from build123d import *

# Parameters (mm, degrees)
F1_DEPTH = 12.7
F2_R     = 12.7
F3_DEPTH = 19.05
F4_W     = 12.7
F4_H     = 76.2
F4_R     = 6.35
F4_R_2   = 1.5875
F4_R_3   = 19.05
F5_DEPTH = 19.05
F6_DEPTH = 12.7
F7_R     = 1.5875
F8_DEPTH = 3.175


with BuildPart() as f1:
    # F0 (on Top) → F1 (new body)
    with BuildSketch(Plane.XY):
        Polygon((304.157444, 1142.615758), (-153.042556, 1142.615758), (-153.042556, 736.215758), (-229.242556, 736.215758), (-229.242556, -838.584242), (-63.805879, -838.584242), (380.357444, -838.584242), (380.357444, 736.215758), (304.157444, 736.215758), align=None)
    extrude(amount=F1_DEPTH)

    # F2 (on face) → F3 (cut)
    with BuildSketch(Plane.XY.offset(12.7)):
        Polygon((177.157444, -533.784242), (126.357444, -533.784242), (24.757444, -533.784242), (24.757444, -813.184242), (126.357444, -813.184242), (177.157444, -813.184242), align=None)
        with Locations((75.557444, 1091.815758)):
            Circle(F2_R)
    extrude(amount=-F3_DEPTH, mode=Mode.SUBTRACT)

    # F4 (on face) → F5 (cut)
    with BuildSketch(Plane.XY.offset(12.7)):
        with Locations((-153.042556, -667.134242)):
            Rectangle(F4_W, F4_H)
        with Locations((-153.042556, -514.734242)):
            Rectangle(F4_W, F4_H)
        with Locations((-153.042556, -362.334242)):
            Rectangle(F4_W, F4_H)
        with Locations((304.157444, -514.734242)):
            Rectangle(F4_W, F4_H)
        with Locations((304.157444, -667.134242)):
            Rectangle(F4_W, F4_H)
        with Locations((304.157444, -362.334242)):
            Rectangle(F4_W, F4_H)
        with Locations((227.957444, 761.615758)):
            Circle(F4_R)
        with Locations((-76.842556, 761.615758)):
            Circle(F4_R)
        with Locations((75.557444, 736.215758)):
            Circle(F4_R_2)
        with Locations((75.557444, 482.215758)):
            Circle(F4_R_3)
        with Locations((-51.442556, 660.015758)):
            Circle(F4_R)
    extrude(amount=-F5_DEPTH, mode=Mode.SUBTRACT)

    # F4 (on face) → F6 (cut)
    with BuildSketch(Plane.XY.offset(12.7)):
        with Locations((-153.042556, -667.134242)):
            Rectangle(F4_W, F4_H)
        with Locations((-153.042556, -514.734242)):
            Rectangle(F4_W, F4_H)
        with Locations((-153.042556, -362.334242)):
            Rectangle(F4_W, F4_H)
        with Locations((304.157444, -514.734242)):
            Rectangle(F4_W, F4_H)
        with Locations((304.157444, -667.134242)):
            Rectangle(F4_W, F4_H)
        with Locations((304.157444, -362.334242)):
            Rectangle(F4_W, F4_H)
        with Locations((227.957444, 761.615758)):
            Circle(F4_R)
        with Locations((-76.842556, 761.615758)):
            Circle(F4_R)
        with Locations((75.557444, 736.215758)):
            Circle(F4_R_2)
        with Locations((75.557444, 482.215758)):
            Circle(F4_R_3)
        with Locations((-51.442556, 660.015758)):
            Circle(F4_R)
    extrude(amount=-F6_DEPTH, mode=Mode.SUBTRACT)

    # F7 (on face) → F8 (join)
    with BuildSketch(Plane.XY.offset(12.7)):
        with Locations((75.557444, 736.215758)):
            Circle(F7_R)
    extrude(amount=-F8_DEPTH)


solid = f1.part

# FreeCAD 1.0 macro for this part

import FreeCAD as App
import Part
import Sketcher

V = App.Vector
Q = App.Units.Quantity

doc = App.newDocument("Part")
body = doc.addObject("PartDesign::Body", "Body")

# Sketch on XY plane
sketch1 = body.newObject("Sketcher::SketchObject", "Sketch")
sketch1.AttachmentSupport = (doc.getObject("XY_Plane"), [""])
sketch1.MapMode = "FlatFace"
sketch1.addGeometry(Part.LineSegment(V(304, 1143, 0), V(-153, 1143, 0)), False)
sketch1.addGeometry(Part.LineSegment(V(-153, 1143, 0), V(-153, 736, 0)), False)
sketch1.addGeometry(Part.LineSegment(V(-153, 736, 0), V(-229, 736, 0)), False)
sketch1.addGeometry(Part.LineSegment(V(-229, 736, 0), V(-229, -839, 0)), False)
sketch1.addGeometry(Part.LineSegment(V(-229, -839, 0), V(380, -839, 0)), False)
sketch1.addGeometry(Part.LineSegment(V(380, -839, 0), V(380, 736, 0)), False)
sketch1.addGeometry(Part.LineSegment(V(380, 736, 0), V(304, 736, 0)), False)
sketch1.addGeometry(Part.LineSegment(V(304, 736, 0), V(304, 1143, 0)), False)
sketch1.addConstraint(Sketcher.Constraint("Coincident", 0, 2, 1, 1))
sketch1.addConstraint(Sketcher.Constraint("Coincident", 1, 2, 2, 1))
sketch1.addConstraint(Sketcher.Constraint("Coincident", 2, 2, 3, 1))
sketch1.addConstraint(Sketcher.Constraint("Coincident", 3, 2, 4, 1))
sketch1.addConstraint(Sketcher.Constraint("Coincident", 4, 2, 5, 1))
sketch1.addConstraint(Sketcher.Constraint("Coincident", 5, 2, 6, 1))
sketch1.addConstraint(Sketcher.Constraint("Coincident", 6, 2, 7, 1))
sketch1.addConstraint(Sketcher.Constraint("Coincident", 7, 2, 0, 1))
sketch1.addConstraint(Sketcher.Constraint("Horizontal", 0))
sketch1.addConstraint(Sketcher.Constraint("Vertical", 1))
sketch1.addConstraint(Sketcher.Constraint("Horizontal", 2))
sketch1.addConstraint(Sketcher.Constraint("Vertical", 3))
sketch1.addConstraint(Sketcher.Constraint("Horizontal", 4))
sketch1.addConstraint(Sketcher.Constraint("Vertical", 5))
sketch1.addConstraint(Sketcher.Constraint("Horizontal", 6))
sketch1.addConstraint(Sketcher.Constraint("Vertical", 7))
sketch1.addConstraint(Sketcher.Constraint("Horizontal", 2, 2, 5, 2))
sketch1.addConstraint(Sketcher.Constraint("Equal", 2, 6))
sketch1.addConstraint(Sketcher.Constraint("DistanceX", 0, 2, 0, 1, Q("18 in")))
sketch1.addConstraint(Sketcher.Constraint("DistanceX", 2, 2, 2, 1, Q("3 in")))
sketch1.addConstraint(Sketcher.Constraint("DistanceY", 1, 2, 1, 1, Q("16 in")))
sketch1.addConstraint(Sketcher.Constraint("DistanceY", 3, 2, 3, 1, Q("62 in")))
sketch1.addConstraint(Sketcher.Constraint("DistanceY", -1, 1, 0, 2, 1142.615758))
sketch1.addConstraint(Sketcher.Constraint("DistanceX", 0, 2, -1, 1, 153.042556))
pad1 = body.newObject("PartDesign::Pad", "Pad")
pad1.Profile = sketch1
pad1.Length = Q("0.5 in")

# Sketch on XY plane
sketch2 = body.newObject("Sketcher::SketchObject", "Sketch001")
sketch2.AttachmentSupport = (doc.getObject("XY_Plane"), [""])
sketch2.MapMode = "FlatFace"
sketch2.AttachmentOffset = App.Placement(V(0, 0, 0.5 * 25.4), App.Rotation())
sketch2.addGeometry(Part.LineSegment(V(177, -534, 0), V(25, -534, 0)), False)
sketch2.addGeometry(Part.LineSegment(V(25, -534, 0), V(25, -813, 0)), False)
sketch2.addGeometry(Part.LineSegment(V(25, -813, 0), V(177, -813, 0)), False)
sketch2.addGeometry(Part.LineSegment(V(177, -813, 0), V(177, -534, 0)), False)
sketch2.addGeometry(Part.Circle(V(76, 1092, 0), V(0, 0, 1), 13), False)
sketch2.addConstraint(Sketcher.Constraint("Coincident", 0, 2, 1, 1))
sketch2.addConstraint(Sketcher.Constraint("Coincident", 1, 2, 2, 1))
sketch2.addConstraint(Sketcher.Constraint("Coincident", 2, 2, 3, 1))
sketch2.addConstraint(Sketcher.Constraint("Coincident", 3, 2, 0, 1))
sketch2.addConstraint(Sketcher.Constraint("Horizontal", 0))
sketch2.addConstraint(Sketcher.Constraint("Vertical", 1))
sketch2.addConstraint(Sketcher.Constraint("Horizontal", 2))
sketch2.addConstraint(Sketcher.Constraint("Vertical", 3))
sketch2.addConstraint(Sketcher.Constraint("Diameter", 4, Q("1 in")))
sketch2.addConstraint(Sketcher.Constraint("DistanceX", 0, 2, 0, 1, Q("6 in")))
sketch2.addConstraint(Sketcher.Constraint("DistanceY", 1, 2, 1, 1, Q("11 in")))
sketch2.addConstraint(Sketcher.Constraint("DistanceX", 0, 2, 4, 3, Q("2 in")))
sketch2.addConstraint(Sketcher.Constraint("DistanceY", 0, 2, 4, 3, Q("64 in")))
sketch2.addConstraint(Sketcher.Constraint("DistanceY", -1, 1, 4, 3, 1091.815758))
sketch2.addConstraint(Sketcher.Constraint("DistanceX", -1, 1, 4, 3, 75.557444))
pocket1 = body.newObject("PartDesign::Pocket", "Pocket")
pocket1.Profile = sketch2
pocket1.Length = Q("0.75 in")

# Sketch on XY plane
sketch3 = body.newObject("Sketcher::SketchObject", "Sketch002")
sketch3.AttachmentSupport = (doc.getObject("XY_Plane"), [""])
sketch3.MapMode = "FlatFace"
sketch3.AttachmentOffset = App.Placement(V(0, 0, 0.5 * 25.4), App.Rotation())
sketch3.addGeometry(Part.LineSegment(V(-159.4, -629, 0), V(-159.4, -705.2, 0)), False)
sketch3.addGeometry(Part.LineSegment(V(-159.4, -705.2, 0), V(-146.7, -705.2, 0)), False)
sketch3.addGeometry(Part.LineSegment(V(-146.7, -705.2, 0), V(-146.7, -629, 0)), False)
sketch3.addGeometry(Part.LineSegment(V(-146.7, -629, 0), V(-159.4, -629, 0)), False)
sketch3.addGeometry(Part.LineSegment(V(-159.4, -476.6, 0), V(-159.4, -552.8, 0)), False)
sketch3.addGeometry(Part.LineSegment(V(-159.4, -552.8, 0), V(-146.7, -552.8, 0)), False)
sketch3.addGeometry(Part.LineSegment(V(-146.7, -552.8, 0), V(-146.7, -476.6, 0)), False)
sketch3.addGeometry(Part.LineSegment(V(-146.7, -476.6, 0), V(-159.4, -476.6, 0)), False)
sketch3.addGeometry(Part.LineSegment(V(-159.4, -324.2, 0), V(-159.4, -400.4, 0)), False)
sketch3.addGeometry(Part.LineSegment(V(-159.4, -400.4, 0), V(-146.7, -400.4, 0)), False)
sketch3.addGeometry(Part.LineSegment(V(-146.7, -400.4, 0), V(-146.7, -324.2, 0)), False)
sketch3.addGeometry(Part.LineSegment(V(-146.7, -324.2, 0), V(-159.4, -324.2, 0)), False)
sketch3.addGeometry(Part.LineSegment(V(297.8, -476.6, 0), V(297.8, -552.8, 0)), False)
sketch3.addGeometry(Part.LineSegment(V(297.8, -552.8, 0), V(310.5, -552.8, 0)), False)
sketch3.addGeometry(Part.LineSegment(V(310.5, -552.8, 0), V(310.5, -476.6, 0)), False)
sketch3.addGeometry(Part.LineSegment(V(310.5, -476.6, 0), V(297.8, -476.6, 0)), False)
sketch3.addGeometry(Part.LineSegment(V(297.8, -629, 0), V(297.8, -705.2, 0)), False)
sketch3.addGeometry(Part.LineSegment(V(297.8, -705.2, 0), V(310.5, -705.2, 0)), False)
sketch3.addGeometry(Part.LineSegment(V(310.5, -705.2, 0), V(310.5, -629, 0)), False)
sketch3.addGeometry(Part.LineSegment(V(310.5, -629, 0), V(297.8, -629, 0)), False)
sketch3.addGeometry(Part.LineSegment(V(297.8, -324.2, 0), V(297.8, -400.4, 0)), False)
sketch3.addGeometry(Part.LineSegment(V(297.8, -400.4, 0), V(310.5, -400.4, 0)), False)
sketch3.addGeometry(Part.LineSegment(V(310.5, -400.4, 0), V(310.5, -324.2, 0)), False)
sketch3.addGeometry(Part.LineSegment(V(310.5, -324.2, 0), V(297.8, -324.2, 0)), False)
sketch3.addGeometry(Part.Circle(V(228, 761.6, 0), V(0, 0, 1), 6.3), False)
sketch3.addGeometry(Part.Circle(V(-76.8, 761.6, 0), V(0, 0, 1), 6.3), False)
sketch3.addGeometry(Part.Circle(V(75.6, 736.2, 0), V(0, 0, 1), 1.6), False)
sketch3.addGeometry(Part.Circle(V(75.6, 482.2, 0), V(0, 0, 1), 19.1), False)
sketch3.addGeometry(Part.Circle(V(-51.4, 660, 0), V(0, 0, 1), 6.3), False)
sketch3.addConstraint(Sketcher.Constraint("Coincident", 0, 2, 1, 1))
sketch3.addConstraint(Sketcher.Constraint("Coincident", 1, 2, 2, 1))
sketch3.addConstraint(Sketcher.Constraint("Coincident", 2, 2, 3, 1))
sketch3.addConstraint(Sketcher.Constraint("Coincident", 3, 2, 0, 1))
sketch3.addConstraint(Sketcher.Constraint("Coincident", 4, 2, 5, 1))
sketch3.addConstraint(Sketcher.Constraint("Coincident", 5, 2, 6, 1))
sketch3.addConstraint(Sketcher.Constraint("Coincident", 6, 2, 7, 1))
sketch3.addConstraint(Sketcher.Constraint("Coincident", 7, 2, 4, 1))
sketch3.addConstraint(Sketcher.Constraint("Coincident", 8, 2, 9, 1))
sketch3.addConstraint(Sketcher.Constraint("Coincident", 9, 2, 10, 1))
sketch3.addConstraint(Sketcher.Constraint("Coincident", 10, 2, 11, 1))
sketch3.addConstraint(Sketcher.Constraint("Coincident", 11, 2, 8, 1))
sketch3.addConstraint(Sketcher.Constraint("Coincident", 12, 2, 13, 1))
sketch3.addConstraint(Sketcher.Constraint("Coincident", 13, 2, 14, 1))
sketch3.addConstraint(Sketcher.Constraint("Coincident", 14, 2, 15, 1))
sketch3.addConstraint(Sketcher.Constraint("Coincident", 15, 2, 12, 1))
sketch3.addConstraint(Sketcher.Constraint("Coincident", 16, 2, 17, 1))
sketch3.addConstraint(Sketcher.Constraint("Coincident", 17, 2, 18, 1))
sketch3.addConstraint(Sketcher.Constraint("Coincident", 18, 2, 19, 1))
sketch3.addConstraint(Sketcher.Constraint("Coincident", 19, 2, 16, 1))
sketch3.addConstraint(Sketcher.Constraint("Coincident", 20, 2, 21, 1))
sketch3.addConstraint(Sketcher.Constraint("Coincident", 21, 2, 22, 1))
sketch3.addConstraint(Sketcher.Constraint("Coincident", 22, 2, 23, 1))
sketch3.addConstraint(Sketcher.Constraint("Coincident", 23, 2, 20, 1))
sketch3.addConstraint(Sketcher.Constraint("Vertical", 0))
sketch3.addConstraint(Sketcher.Constraint("Horizontal", 1))
sketch3.addConstraint(Sketcher.Constraint("Vertical", 2))
sketch3.addConstraint(Sketcher.Constraint("Horizontal", 3))
sketch3.addConstraint(Sketcher.Constraint("Vertical", 4))
sketch3.addConstraint(Sketcher.Constraint("Horizontal", 5))
sketch3.addConstraint(Sketcher.Constraint("Vertical", 6))
sketch3.addConstraint(Sketcher.Constraint("Horizontal", 7))
sketch3.addConstraint(Sketcher.Constraint("Vertical", 8))
sketch3.addConstraint(Sketcher.Constraint("Horizontal", 9))
sketch3.addConstraint(Sketcher.Constraint("Vertical", 10))
sketch3.addConstraint(Sketcher.Constraint("Horizontal", 11))
sketch3.addConstraint(Sketcher.Constraint("Vertical", 12))
sketch3.addConstraint(Sketcher.Constraint("Horizontal", 13))
sketch3.addConstraint(Sketcher.Constraint("Vertical", 14))
sketch3.addConstraint(Sketcher.Constraint("Horizontal", 15))
sketch3.addConstraint(Sketcher.Constraint("Vertical", 16))
sketch3.addConstraint(Sketcher.Constraint("Horizontal", 17))
sketch3.addConstraint(Sketcher.Constraint("Vertical", 18))
sketch3.addConstraint(Sketcher.Constraint("Horizontal", 19))
sketch3.addConstraint(Sketcher.Constraint("Vertical", 20))
sketch3.addConstraint(Sketcher.Constraint("Horizontal", 21))
sketch3.addConstraint(Sketcher.Constraint("Vertical", 22))
sketch3.addConstraint(Sketcher.Constraint("Horizontal", 23))
sketch3.addConstraint(Sketcher.Constraint("Equal", 24, 25))
sketch3.addConstraint(Sketcher.Constraint("Equal", 25, 28))
sketch3.addConstraint(Sketcher.Constraint("Horizontal", 24, 3, 25, 3))
sketch3.addConstraint(Sketcher.Constraint("Horizontal", 5, 2, 12, 2))
sketch3.addConstraint(Sketcher.Constraint("Horizontal", 7, 2, 14, 2))
sketch3.addConstraint(Sketcher.Constraint("Horizontal", 1, 2, 16, 2))
sketch3.addConstraint(Sketcher.Constraint("Horizontal", 3, 2, 18, 2))
sketch3.addConstraint(Sketcher.Constraint("Horizontal", 9, 2, 20, 2))
sketch3.addConstraint(Sketcher.Constraint("Horizontal", 11, 2, 22, 2))
sketch3.addConstraint(Sketcher.Constraint("Vertical", 26, 3, 27, 3))
sketch3.addConstraint(Sketcher.Constraint("Vertical", 3, 2, 4, 2))
sketch3.addConstraint(Sketcher.Constraint("Vertical", 2, 2, 5, 2))
sketch3.addConstraint(Sketcher.Constraint("Vertical", 7, 2, 8, 2))
sketch3.addConstraint(Sketcher.Constraint("Vertical", 6, 2, 9, 2))
sketch3.addConstraint(Sketcher.Constraint("Vertical", 15, 2, 16, 2))
sketch3.addConstraint(Sketcher.Constraint("Vertical", 14, 2, 17, 2))
sketch3.addConstraint(Sketcher.Constraint("Vertical", 19, 2, 20, 2))
sketch3.addConstraint(Sketcher.Constraint("Vertical", 18, 2, 21, 2))
sketch3.addConstraint(Sketcher.Constraint("Equal", 11, 13))
sketch3.addConstraint(Sketcher.Constraint("Equal", 2, 4))
sketch3.addConstraint(Sketcher.Constraint("Equal", 6, 8))
sketch3.addConstraint(Sketcher.Constraint("Diameter", 24, Q("0.5 in")))
sketch3.addConstraint(Sketcher.Constraint("Diameter", 27, Q("1.5 in")))
sketch3.addConstraint(Sketcher.Constraint("DistanceY", 0, 2, 0, 1, Q("3 in")))
sketch3.addConstraint(Sketcher.Constraint("Diameter", 26, Q("0.125 in")))
sketch3.addConstraint(Sketcher.Constraint("DistanceX", 1, 1, 1, 2, Q("0.5 in")))
sketch3.addConstraint(Sketcher.Constraint("DistanceX", 25, 3, 24, 3, Q("12 in")))
sketch3.addConstraint(Sketcher.Constraint("DistanceX", 26, 3, 24, 3, Q("6 in")))
sketch3.addConstraint(Sketcher.Constraint("DistanceY", 26, 3, 24, 3, Q("1 in")))
sketch3.addConstraint(Sketcher.Constraint("DistanceY", 27, 3, 26, 3, Q("10 in")))
sketch3.addConstraint(Sketcher.Constraint("DistanceX", 25, 3, 28, 3, Q("1 in")))
sketch3.addConstraint(Sketcher.Constraint("DistanceY", 28, 3, 25, 3, Q("4 in")))
sketch3.addConstraint(Sketcher.Constraint("DistanceY", 3, 2, 4, 2, Q("3 in")))
sketch3.addConstraint(Sketcher.Constraint("DistanceY", 7, 2, 8, 2, Q("3 in")))
sketch3.addConstraint(Sketcher.Constraint("DistanceX", 4, 2, 12, 2, Q("18 in")))
sketch3.addConstraint(Sketcher.Constraint("DistanceX", 0, 2, 27, 3, Q("9.25 in")))
sketch3.addConstraint(Sketcher.Constraint("DistanceY", 0, 2, 27, 3, Q("46.75 in")))
sketch3.addConstraint(Sketcher.Constraint("DistanceY", -1, 1, 24, 3, 761.615758))
sketch3.addConstraint(Sketcher.Constraint("DistanceX", -1, 1, 24, 3, 227.957444))
pocket2 = body.newObject("PartDesign::Pocket", "Pocket001")
pocket2.Profile = sketch3
pocket2.Length = Q("0.75 in")

# Sketch on XY plane
sketch4 = body.newObject("Sketcher::SketchObject", "Sketch003")
sketch4.AttachmentSupport = (doc.getObject("XY_Plane"), [""])
sketch4.MapMode = "FlatFace"
sketch4.AttachmentOffset = App.Placement(V(0, 0, 0.5 * 25.4), App.Rotation())
sketch4.addGeometry(Part.LineSegment(V(-159.4, -629, 0), V(-159.4, -705.2, 0)), False)
sketch4.addGeometry(Part.LineSegment(V(-159.4, -705.2, 0), V(-146.7, -705.2, 0)), False)
sketch4.addGeometry(Part.LineSegment(V(-146.7, -705.2, 0), V(-146.7, -629, 0)), False)
sketch4.addGeometry(Part.LineSegment(V(-146.7, -629, 0), V(-159.4, -629, 0)), False)
sketch4.addGeometry(Part.LineSegment(V(-159.4, -476.6, 0), V(-159.4, -552.8, 0)), False)
sketch4.addGeometry(Part.LineSegment(V(-159.4, -552.8, 0), V(-146.7, -552.8, 0)), False)
sketch4.addGeometry(Part.LineSegment(V(-146.7, -552.8, 0), V(-146.7, -476.6, 0)), False)
sketch4.addGeometry(Part.LineSegment(V(-146.7, -476.6, 0), V(-159.4, -476.6, 0)), False)
sketch4.addGeometry(Part.LineSegment(V(-159.4, -324.2, 0), V(-159.4, -400.4, 0)), False)
sketch4.addGeometry(Part.LineSegment(V(-159.4, -400.4, 0), V(-146.7, -400.4, 0)), False)
sketch4.addGeometry(Part.LineSegment(V(-146.7, -400.4, 0), V(-146.7, -324.2, 0)), False)
sketch4.addGeometry(Part.LineSegment(V(-146.7, -324.2, 0), V(-159.4, -324.2, 0)), False)
sketch4.addGeometry(Part.LineSegment(V(297.8, -476.6, 0), V(297.8, -552.8, 0)), False)
sketch4.addGeometry(Part.LineSegment(V(297.8, -552.8, 0), V(310.5, -552.8, 0)), False)
sketch4.addGeometry(Part.LineSegment(V(310.5, -552.8, 0), V(310.5, -476.6, 0)), False)
sketch4.addGeometry(Part.LineSegment(V(310.5, -476.6, 0), V(297.8, -476.6, 0)), False)
sketch4.addGeometry(Part.LineSegment(V(297.8, -629, 0), V(297.8, -705.2, 0)), False)
sketch4.addGeometry(Part.LineSegment(V(297.8, -705.2, 0), V(310.5, -705.2, 0)), False)
sketch4.addGeometry(Part.LineSegment(V(310.5, -705.2, 0), V(310.5, -629, 0)), False)
sketch4.addGeometry(Part.LineSegment(V(310.5, -629, 0), V(297.8, -629, 0)), False)
sketch4.addGeometry(Part.LineSegment(V(297.8, -324.2, 0), V(297.8, -400.4, 0)), False)
sketch4.addGeometry(Part.LineSegment(V(297.8, -400.4, 0), V(310.5, -400.4, 0)), False)
sketch4.addGeometry(Part.LineSegment(V(310.5, -400.4, 0), V(310.5, -324.2, 0)), False)
sketch4.addGeometry(Part.LineSegment(V(310.5, -324.2, 0), V(297.8, -324.2, 0)), False)
sketch4.addGeometry(Part.Circle(V(228, 761.6, 0), V(0, 0, 1), 6.3), False)
sketch4.addGeometry(Part.Circle(V(-76.8, 761.6, 0), V(0, 0, 1), 6.3), False)
sketch4.addGeometry(Part.Circle(V(75.6, 736.2, 0), V(0, 0, 1), 1.6), False)
sketch4.addGeometry(Part.Circle(V(75.6, 482.2, 0), V(0, 0, 1), 19.1), False)
sketch4.addGeometry(Part.Circle(V(-51.4, 660, 0), V(0, 0, 1), 6.3), False)
sketch4.addConstraint(Sketcher.Constraint("Coincident", 0, 2, 1, 1))
sketch4.addConstraint(Sketcher.Constraint("Coincident", 1, 2, 2, 1))
sketch4.addConstraint(Sketcher.Constraint("Coincident", 2, 2, 3, 1))
sketch4.addConstraint(Sketcher.Constraint("Coincident", 3, 2, 0, 1))
sketch4.addConstraint(Sketcher.Constraint("Coincident", 4, 2, 5, 1))
sketch4.addConstraint(Sketcher.Constraint("Coincident", 5, 2, 6, 1))
sketch4.addConstraint(Sketcher.Constraint("Coincident", 6, 2, 7, 1))
sketch4.addConstraint(Sketcher.Constraint("Coincident", 7, 2, 4, 1))
sketch4.addConstraint(Sketcher.Constraint("Coincident", 8, 2, 9, 1))
sketch4.addConstraint(Sketcher.Constraint("Coincident", 9, 2, 10, 1))
sketch4.addConstraint(Sketcher.Constraint("Coincident", 10, 2, 11, 1))
sketch4.addConstraint(Sketcher.Constraint("Coincident", 11, 2, 8, 1))
sketch4.addConstraint(Sketcher.Constraint("Coincident", 12, 2, 13, 1))
sketch4.addConstraint(Sketcher.Constraint("Coincident", 13, 2, 14, 1))
sketch4.addConstraint(Sketcher.Constraint("Coincident", 14, 2, 15, 1))
sketch4.addConstraint(Sketcher.Constraint("Coincident", 15, 2, 12, 1))
sketch4.addConstraint(Sketcher.Constraint("Coincident", 16, 2, 17, 1))
sketch4.addConstraint(Sketcher.Constraint("Coincident", 17, 2, 18, 1))
sketch4.addConstraint(Sketcher.Constraint("Coincident", 18, 2, 19, 1))
sketch4.addConstraint(Sketcher.Constraint("Coincident", 19, 2, 16, 1))
sketch4.addConstraint(Sketcher.Constraint("Coincident", 20, 2, 21, 1))
sketch4.addConstraint(Sketcher.Constraint("Coincident", 21, 2, 22, 1))
sketch4.addConstraint(Sketcher.Constraint("Coincident", 22, 2, 23, 1))
sketch4.addConstraint(Sketcher.Constraint("Coincident", 23, 2, 20, 1))
sketch4.addConstraint(Sketcher.Constraint("Vertical", 0))
sketch4.addConstraint(Sketcher.Constraint("Horizontal", 1))
sketch4.addConstraint(Sketcher.Constraint("Vertical", 2))
sketch4.addConstraint(Sketcher.Constraint("Horizontal", 3))
sketch4.addConstraint(Sketcher.Constraint("Vertical", 4))
sketch4.addConstraint(Sketcher.Constraint("Horizontal", 5))
sketch4.addConstraint(Sketcher.Constraint("Vertical", 6))
sketch4.addConstraint(Sketcher.Constraint("Horizontal", 7))
sketch4.addConstraint(Sketcher.Constraint("Vertical", 8))
sketch4.addConstraint(Sketcher.Constraint("Horizontal", 9))
sketch4.addConstraint(Sketcher.Constraint("Vertical", 10))
sketch4.addConstraint(Sketcher.Constraint("Horizontal", 11))
sketch4.addConstraint(Sketcher.Constraint("Vertical", 12))
sketch4.addConstraint(Sketcher.Constraint("Horizontal", 13))
sketch4.addConstraint(Sketcher.Constraint("Vertical", 14))
sketch4.addConstraint(Sketcher.Constraint("Horizontal", 15))
sketch4.addConstraint(Sketcher.Constraint("Vertical", 16))
sketch4.addConstraint(Sketcher.Constraint("Horizontal", 17))
sketch4.addConstraint(Sketcher.Constraint("Vertical", 18))
sketch4.addConstraint(Sketcher.Constraint("Horizontal", 19))
sketch4.addConstraint(Sketcher.Constraint("Vertical", 20))
sketch4.addConstraint(Sketcher.Constraint("Horizontal", 21))
sketch4.addConstraint(Sketcher.Constraint("Vertical", 22))
sketch4.addConstraint(Sketcher.Constraint("Horizontal", 23))
sketch4.addConstraint(Sketcher.Constraint("Equal", 24, 25))
sketch4.addConstraint(Sketcher.Constraint("Equal", 25, 28))
sketch4.addConstraint(Sketcher.Constraint("Horizontal", 24, 3, 25, 3))
sketch4.addConstraint(Sketcher.Constraint("Horizontal", 5, 2, 12, 2))
sketch4.addConstraint(Sketcher.Constraint("Horizontal", 7, 2, 14, 2))
sketch4.addConstraint(Sketcher.Constraint("Horizontal", 1, 2, 16, 2))
sketch4.addConstraint(Sketcher.Constraint("Horizontal", 3, 2, 18, 2))
sketch4.addConstraint(Sketcher.Constraint("Horizontal", 9, 2, 20, 2))
sketch4.addConstraint(Sketcher.Constraint("Horizontal", 11, 2, 22, 2))
sketch4.addConstraint(Sketcher.Constraint("Vertical", 26, 3, 27, 3))
sketch4.addConstraint(Sketcher.Constraint("Vertical", 3, 2, 4, 2))
sketch4.addConstraint(Sketcher.Constraint("Vertical", 2, 2, 5, 2))
sketch4.addConstraint(Sketcher.Constraint("Vertical", 7, 2, 8, 2))
sketch4.addConstraint(Sketcher.Constraint("Vertical", 6, 2, 9, 2))
sketch4.addConstraint(Sketcher.Constraint("Vertical", 15, 2, 16, 2))
sketch4.addConstraint(Sketcher.Constraint("Vertical", 14, 2, 17, 2))
sketch4.addConstraint(Sketcher.Constraint("Vertical", 19, 2, 20, 2))
sketch4.addConstraint(Sketcher.Constraint("Vertical", 18, 2, 21, 2))
sketch4.addConstraint(Sketcher.Constraint("Equal", 11, 13))
sketch4.addConstraint(Sketcher.Constraint("Equal", 2, 4))
sketch4.addConstraint(Sketcher.Constraint("Equal", 6, 8))
sketch4.addConstraint(Sketcher.Constraint("Diameter", 24, Q("0.5 in")))
sketch4.addConstraint(Sketcher.Constraint("Diameter", 27, Q("1.5 in")))
sketch4.addConstraint(Sketcher.Constraint("DistanceY", 0, 2, 0, 1, Q("3 in")))
sketch4.addConstraint(Sketcher.Constraint("Diameter", 26, Q("0.125 in")))
sketch4.addConstraint(Sketcher.Constraint("DistanceX", 1, 1, 1, 2, Q("0.5 in")))
sketch4.addConstraint(Sketcher.Constraint("DistanceX", 25, 3, 24, 3, Q("12 in")))
sketch4.addConstraint(Sketcher.Constraint("DistanceX", 26, 3, 24, 3, Q("6 in")))
sketch4.addConstraint(Sketcher.Constraint("DistanceY", 26, 3, 24, 3, Q("1 in")))
sketch4.addConstraint(Sketcher.Constraint("DistanceY", 27, 3, 26, 3, Q("10 in")))
sketch4.addConstraint(Sketcher.Constraint("DistanceX", 25, 3, 28, 3, Q("1 in")))
sketch4.addConstraint(Sketcher.Constraint("DistanceY", 28, 3, 25, 3, Q("4 in")))
sketch4.addConstraint(Sketcher.Constraint("DistanceY", 3, 2, 4, 2, Q("3 in")))
sketch4.addConstraint(Sketcher.Constraint("DistanceY", 7, 2, 8, 2, Q("3 in")))
sketch4.addConstraint(Sketcher.Constraint("DistanceX", 4, 2, 12, 2, Q("18 in")))
sketch4.addConstraint(Sketcher.Constraint("DistanceX", 0, 2, 27, 3, Q("9.25 in")))
sketch4.addConstraint(Sketcher.Constraint("DistanceY", 0, 2, 27, 3, Q("46.75 in")))
sketch4.addConstraint(Sketcher.Constraint("DistanceY", -1, 1, 24, 3, 761.615758))
sketch4.addConstraint(Sketcher.Constraint("DistanceX", -1, 1, 24, 3, 227.957444))
pocket3 = body.newObject("PartDesign::Pocket", "Pocket002")
pocket3.Profile = sketch4
pocket3.Length = Q("0.5 in")

# Sketch on XY plane
sketch5 = body.newObject("Sketcher::SketchObject", "Sketch004")
sketch5.AttachmentSupport = (doc.getObject("XY_Plane"), [""])
sketch5.MapMode = "FlatFace"
sketch5.AttachmentOffset = App.Placement(V(0, 0, 0.5 * 25.4), App.Rotation())
sketch5.addGeometry(Part.Circle(V(75.6, 736.2, 0), V(0, 0, 1), 1.6), False)
sketch5.addConstraint(Sketcher.Constraint("Diameter", 0, Q("0.125 in")))
sketch5.addConstraint(Sketcher.Constraint("DistanceY", -1, 1, 0, 3, 736.215758))
sketch5.addConstraint(Sketcher.Constraint("DistanceX", -1, 1, 0, 3, 75.557444))
pad2 = body.newObject("PartDesign::Pad", "Pad001")
pad2.Profile = sketch5
pad2.Length = Q("0.125 in")
pad2.Reversed = True

doc.recompute()
